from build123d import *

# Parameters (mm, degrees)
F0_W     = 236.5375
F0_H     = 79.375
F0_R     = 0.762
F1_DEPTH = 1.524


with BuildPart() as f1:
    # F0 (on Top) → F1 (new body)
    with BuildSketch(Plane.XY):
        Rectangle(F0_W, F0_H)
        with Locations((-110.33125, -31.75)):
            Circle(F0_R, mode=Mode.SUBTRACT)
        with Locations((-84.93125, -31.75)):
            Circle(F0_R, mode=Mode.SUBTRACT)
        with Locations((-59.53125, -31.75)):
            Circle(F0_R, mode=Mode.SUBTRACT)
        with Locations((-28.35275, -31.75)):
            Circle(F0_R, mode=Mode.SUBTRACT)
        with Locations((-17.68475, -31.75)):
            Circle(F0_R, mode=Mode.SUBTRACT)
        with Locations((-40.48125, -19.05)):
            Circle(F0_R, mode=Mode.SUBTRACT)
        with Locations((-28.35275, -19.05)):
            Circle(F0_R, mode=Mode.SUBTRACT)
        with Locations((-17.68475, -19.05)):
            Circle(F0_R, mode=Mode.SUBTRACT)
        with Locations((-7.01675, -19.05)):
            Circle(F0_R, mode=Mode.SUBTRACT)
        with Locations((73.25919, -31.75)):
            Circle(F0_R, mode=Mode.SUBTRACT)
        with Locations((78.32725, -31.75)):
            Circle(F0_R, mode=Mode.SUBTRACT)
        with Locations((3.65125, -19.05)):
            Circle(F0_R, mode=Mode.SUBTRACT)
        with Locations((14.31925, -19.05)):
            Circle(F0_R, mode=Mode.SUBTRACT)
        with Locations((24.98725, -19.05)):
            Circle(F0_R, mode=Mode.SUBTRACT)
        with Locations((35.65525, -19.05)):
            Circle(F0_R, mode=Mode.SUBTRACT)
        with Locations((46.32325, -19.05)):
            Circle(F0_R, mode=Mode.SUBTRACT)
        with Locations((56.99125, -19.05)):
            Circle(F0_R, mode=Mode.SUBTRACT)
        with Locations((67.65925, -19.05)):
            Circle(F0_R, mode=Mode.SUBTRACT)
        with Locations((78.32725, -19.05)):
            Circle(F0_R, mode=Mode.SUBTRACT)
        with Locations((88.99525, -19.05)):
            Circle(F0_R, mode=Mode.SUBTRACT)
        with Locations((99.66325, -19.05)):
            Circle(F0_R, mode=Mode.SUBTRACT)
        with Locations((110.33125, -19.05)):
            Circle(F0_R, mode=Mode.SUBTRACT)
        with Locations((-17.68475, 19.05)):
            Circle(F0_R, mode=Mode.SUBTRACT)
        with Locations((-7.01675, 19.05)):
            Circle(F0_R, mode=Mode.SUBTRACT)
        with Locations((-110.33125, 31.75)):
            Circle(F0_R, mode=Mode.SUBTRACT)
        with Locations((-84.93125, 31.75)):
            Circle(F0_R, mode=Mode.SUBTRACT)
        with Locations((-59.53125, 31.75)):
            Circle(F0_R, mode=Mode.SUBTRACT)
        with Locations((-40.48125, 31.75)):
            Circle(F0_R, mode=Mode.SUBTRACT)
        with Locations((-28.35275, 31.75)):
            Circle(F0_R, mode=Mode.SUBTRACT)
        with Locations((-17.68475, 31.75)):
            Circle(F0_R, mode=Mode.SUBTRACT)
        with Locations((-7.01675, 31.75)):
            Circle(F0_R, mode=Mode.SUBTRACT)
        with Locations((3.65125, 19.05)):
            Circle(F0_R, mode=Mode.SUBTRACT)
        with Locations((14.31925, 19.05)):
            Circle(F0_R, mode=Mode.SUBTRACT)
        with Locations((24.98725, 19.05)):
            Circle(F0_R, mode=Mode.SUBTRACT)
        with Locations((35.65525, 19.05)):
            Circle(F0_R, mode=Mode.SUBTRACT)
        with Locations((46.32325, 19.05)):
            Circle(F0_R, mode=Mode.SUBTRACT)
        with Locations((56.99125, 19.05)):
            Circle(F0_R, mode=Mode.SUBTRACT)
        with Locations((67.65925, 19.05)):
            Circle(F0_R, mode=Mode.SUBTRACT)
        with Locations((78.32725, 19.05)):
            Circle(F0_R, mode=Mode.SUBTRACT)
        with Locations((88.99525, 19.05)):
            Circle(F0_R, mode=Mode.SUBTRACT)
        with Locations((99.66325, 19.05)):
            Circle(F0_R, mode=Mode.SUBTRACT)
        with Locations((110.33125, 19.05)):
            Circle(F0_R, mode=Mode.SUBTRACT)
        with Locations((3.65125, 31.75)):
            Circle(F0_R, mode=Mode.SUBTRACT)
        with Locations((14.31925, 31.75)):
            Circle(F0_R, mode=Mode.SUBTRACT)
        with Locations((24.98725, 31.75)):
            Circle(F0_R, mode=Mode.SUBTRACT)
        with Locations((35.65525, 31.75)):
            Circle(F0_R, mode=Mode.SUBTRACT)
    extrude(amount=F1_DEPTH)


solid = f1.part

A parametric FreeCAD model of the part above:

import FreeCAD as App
import Part
import Sketcher
Q = App.Units.Quantity


def add_polygon(sketch, points):
    """Adds a closed chain of lines whose ends are joined by coincident constraints."""
    first, n = sketch.GeometryCount, len(points)
    for a, b in zip(points, points[1:] + points[:1]):
        sketch.addGeometry(Part.LineSegment(App.Vector(*a, 0), App.Vector(*b, 0)), False)
    for i in range(n):
        sketch.addConstraint(Sketcher.Constraint("Coincident", first + i, 2, first + (i + 1) % n, 1))

doc = App.newDocument("Part")
body = doc.addObject("PartDesign::Body", "Body")

sketch1 = doc.addObject("Sketcher::SketchObject", "Sketch")
body.addObject(sketch1)
sketch1.AttachmentSupport = (doc.XY_Plane, [""])
sketch1.MapMode = "FlatFace"
add_polygon(sketch1, [(-118.3, 39.7), (-118.3, -39.7), (118.3, -39.7), (118.3, 39.7)])
sketch1.addGeometry(Part.Circle(App.Vector(-110.3, -31.8, 0), App.Vector(0, 0, 1), 0.8), False)
sketch1.addGeometry(Part.Circle(App.Vector(-84.9, -31.8, 0), App.Vector(0, 0, 1), 0.8), False)
sketch1.addGeometry(Part.Circle(App.Vector(-59.5, -31.8, 0), App.Vector(0, 0, 1), 0.8), False)
sketch1.addGeometry(Part.Circle(App.Vector(-28.4, -31.8, 0), App.Vector(0, 0, 1), 0.8), False)
sketch1.addGeometry(Part.Circle(App.Vector(-17.7, -31.8, 0), App.Vector(0, 0, 1), 0.8), False)
sketch1.addGeometry(Part.Circle(App.Vector(-40.5, -19.1, 0), App.Vector(0, 0, 1), 0.8), False)
sketch1.addGeometry(Part.Circle(App.Vector(-28.4, -19.1, 0), App.Vector(0, 0, 1), 0.8), False)
sketch1.addGeometry(Part.Circle(App.Vector(-17.7, -19.1, 0), App.Vector(0, 0, 1), 0.8), False)
sketch1.addGeometry(Part.Circle(App.Vector(-7, -19.1, 0), App.Vector(0, 0, 1), 0.8), False)
sketch1.addGeometry(Part.Circle(App.Vector(3.7, -19.1, 0), App.Vector(0, 0, 1), 0.8), False)
sketch1.addGeometry(Part.Circle(App.Vector(14.3, -19.1, 0), App.Vector(0, 0, 1), 0.8), False)
sketch1.addGeometry(Part.Circle(App.Vector(25, -19.1, 0), App.Vector(0, 0, 1), 0.8), False)
sketch1.addGeometry(Part.Circle(App.Vector(35.7, -19.1, 0), App.Vector(0, 0, 1), 0.8), False)
sketch1.addGeometry(Part.Circle(App.Vector(46.3, -19.1, 0), App.Vector(0, 0, 1), 0.8), False)
sketch1.addGeometry(Part.Circle(App.Vector(73.3, -31.8, 0), App.Vector(0, 0, 1), 0.8), False)
sketch1.addGeometry(Part.Circle(App.Vector(78.3, -31.8, 0), App.Vector(0, 0, 1), 0.8), False)
sketch1.addGeometry(Part.Circle(App.Vector(57, -19.1, 0), App.Vector(0, 0, 1), 0.8), False)
sketch1.addGeometry(Part.Circle(App.Vector(67.7, -19.1, 0), App.Vector(0, 0, 1), 0.8), False)
sketch1.addGeometry(Part.Circle(App.Vector(78.3, -19.1, 0), App.Vector(0, 0, 1), 0.8), False)
sketch1.addGeometry(Part.Circle(App.Vector(89, -19.1, 0), App.Vector(0, 0, 1), 0.8), False)
sketch1.addGeometry(Part.Circle(App.Vector(99.7, -19.1, 0), App.Vector(0, 0, 1), 0.8), False)
sketch1.addGeometry(Part.Circle(App.Vector(110.3, -19.1, 0), App.Vector(0, 0, 1), 0.8), False)
sketch1.addGeometry(Part.Circle(App.Vector(-110.3, 31.8, 0), App.Vector(0, 0, 1), 0.8), False)
sketch1.addGeometry(Part.Circle(App.Vector(-84.9, 31.8, 0), App.Vector(0, 0, 1), 0.8), False)
sketch1.addGeometry(Part.Circle(App.Vector(-59.5, 31.8, 0), App.Vector(0, 0, 1), 0.8), False)
sketch1.addGeometry(Part.Circle(App.Vector(-17.7, 19.1, 0), App.Vector(0, 0, 1), 0.8), False)
sketch1.addGeometry(Part.Circle(App.Vector(-7, 19.1, 0), App.Vector(0, 0, 1), 0.8), False)
sketch1.addGeometry(Part.Circle(App.Vector(-40.5, 31.8, 0), App.Vector(0, 0, 1), 0.8), False)
sketch1.addGeometry(Part.Circle(App.Vector(-28.4, 31.8, 0), App.Vector(0, 0, 1), 0.8), False)
sketch1.addGeometry(Part.Circle(App.Vector(-17.7, 31.8, 0), App.Vector(0, 0, 1), 0.8), False)
sketch1.addGeometry(Part.Circle(App.Vector(-7, 31.8, 0), App.Vector(0, 0, 1), 0.8), False)
sketch1.addGeometry(Part.Circle(App.Vector(3.7, 19.1, 0), App.Vector(0, 0, 1), 0.8), False)
sketch1.addGeometry(Part.Circle(App.Vector(14.3, 19.1, 0), App.Vector(0, 0, 1), 0.8), False)
sketch1.addGeometry(Part.Circle(App.Vector(25, 19.1, 0), App.Vector(0, 0, 1), 0.8), False)
sketch1.addGeometry(Part.Circle(App.Vector(35.7, 19.1, 0), App.Vector(0, 0, 1), 0.8), False)
sketch1.addGeometry(Part.Circle(App.Vector(46.3, 19.1, 0), App.Vector(0, 0, 1), 0.8), False)
sketch1.addGeometry(Part.Circle(App.Vector(3.7, 31.8, 0), App.Vector(0, 0, 1), 0.8), False)
sketch1.addGeometry(Part.Circle(App.Vector(14.3, 31.8, 0), App.Vector(0, 0, 1), 0.8), False)
sketch1.addGeometry(Part.Circle(App.Vector(25, 31.8, 0), App.Vector(0, 0, 1), 0.8), False)
sketch1.addGeometry(Part.Circle(App.Vector(35.7, 31.8, 0), App.Vector(0, 0, 1), 0.8), False)
sketch1.addGeometry(Part.Circle(App.Vector(57, 19.1, 0), App.Vector(0, 0, 1), 0.8), False)
sketch1.addGeometry(Part.Circle(App.Vector(67.7, 19.1, 0), App.Vector(0, 0, 1), 0.8), False)
sketch1.addGeometry(Part.Circle(App.Vector(78.3, 19.1, 0), App.Vector(0, 0, 1), 0.8), False)
sketch1.addGeometry(Part.Circle(App.Vector(89, 19.1, 0), App.Vector(0, 0, 1), 0.8), False)
sketch1.addGeometry(Part.Circle(App.Vector(99.7, 19.1, 0), App.Vector(0, 0, 1), 0.8), False)
sketch1.addGeometry(Part.Circle(App.Vector(110.3, 19.1, 0), App.Vector(0, 0, 1), 0.8), False)
sketch1.addConstraint(Sketcher.Constraint("Vertical", 0))
sketch1.addConstraint(Sketcher.Constraint("Horizontal", 1))
sketch1.addConstraint(Sketcher.Constraint("Vertical", 2))
sketch1.addConstraint(Sketcher.Constraint("Horizontal", 3))
sketch1.addConstraint(Sketcher.Constraint("Equal", 4, 5))
sketch1.addConstraint(Sketcher.Constraint("Equal", 5, 6))
sketch1.addConstraint(Sketcher.Constraint("Equal", 6, 7))
sketch1.addConstraint(Sketcher.Constraint("Equal", 7, 8))
sketch1.addConstraint(Sketcher.Constraint("Equal", 8, 9))
sketch1.addConstraint(Sketcher.Constraint("Equal", 9, 10))
sketch1.addConstraint(Sketcher.Constraint("Equal", 10, 11))
sketch1.addConstraint(Sketcher.Constraint("Equal", 11, 12))
sketch1.addConstraint(Sketcher.Constraint("Equal", 12, 13))
sketch1.addConstraint(Sketcher.Constraint("Equal", 13, 14))
sketch1.addConstraint(Sketcher.Constraint("Equal", 14, 15))
sketch1.addConstraint(Sketcher.Constraint("Equal", 15, 16))
sketch1.addConstraint(Sketcher.Constraint("Equal", 16, 17))
sketch1.addConstraint(Sketcher.Constraint("Equal", 17, 18))
sketch1.addConstraint(Sketcher.Constraint("Equal", 18, 19))
sketch1.addConstraint(Sketcher.Constraint("Equal", 19, 20))
sketch1.addConstraint(Sketcher.Constraint("Equal", 20, 21))
sketch1.addConstraint(Sketcher.Constraint("Equal", 21, 22))
sketch1.addConstraint(Sketcher.Constraint("Equal", 22, 23))
sketch1.addConstraint(Sketcher.Constraint("Equal", 23, 24))
sketch1.addConstraint(Sketcher.Constraint("Equal", 24, 25))
sketch1.addConstraint(Sketcher.Constraint("Equal", 25, 26))
sketch1.addConstraint(Sketcher.Constraint("Equal", 26, 27))
sketch1.addConstraint(Sketcher.Constraint("Equal", 27, 28))
sketch1.addConstraint(Sketcher.Constraint("Equal", 28, 29))
sketch1.addConstraint(Sketcher.Constraint("Equal", 29, 30))
sketch1.addConstraint(Sketcher.Constraint("Equal", 30, 31))
sketch1.addConstraint(Sketcher.Constraint("Equal", 31, 32))
sketch1.addConstraint(Sketcher.Constraint("Equal", 32, 33))
sketch1.addConstraint(Sketcher.Constraint("Equal", 33, 34))
sketch1.addConstraint(Sketcher.Constraint("Equal", 34, 35))
sketch1.addConstraint(Sketcher.Constraint("Equal", 35, 36))
sketch1.addConstraint(Sketcher.Constraint("Equal", 36, 37))
sketch1.addConstraint(Sketcher.Constraint("Equal", 37, 38))
sketch1.addConstraint(Sketcher.Constraint("Equal", 38, 39))
sketch1.addConstraint(Sketcher.Constraint("Equal", 39, 40))
sketch1.addConstraint(Sketcher.Constraint("Equal", 40, 41))
sketch1.addConstraint(Sketcher.Constraint("Equal", 41, 42))
sketch1.addConstraint(Sketcher.Constraint("Equal", 42, 43))
sketch1.addConstraint(Sketcher.Constraint("Equal", 43, 44))
sketch1.addConstraint(Sketcher.Constraint("Equal", 44, 45))
sketch1.addConstraint(Sketcher.Constraint("Equal", 45, 46))
sketch1.addConstraint(Sketcher.Constraint("Equal", 46, 47))
sketch1.addConstraint(Sketcher.Constraint("Equal", 47, 48))
sketch1.addConstraint(Sketcher.Constraint("Equal", 48, 49))
sketch1.addConstraint(Sketcher.Constraint("Symmetric", 0, 2, 2, 2, -1, 1))
sketch1.addConstraint(Sketcher.Constraint("Symmetric", 4, 3, 26, 3, -1))
sketch1.addConstraint(Sketcher.Constraint("Symmetric", 5, 3, 27, 3, -1))
sketch1.addConstraint(Sketcher.Constraint("Symmetric", 6, 3, 28, 3, -1))
sketch1.addConstraint(Sketcher.Constraint("Symmetric", 11, 3, 29, 3, -1))
sketch1.addConstraint(Sketcher.Constraint("Symmetric", 12, 3, 30, 3, -1))
sketch1.addConstraint(Sketcher.Constraint("Symmetric", 7, 3, 32, 3, -1))
sketch1.addConstraint(Sketcher.Constraint("Symmetric", 8, 3, 33, 3, -1))
sketch1.addConstraint(Sketcher.Constraint("Symmetric", 13, 3, 35, 3, -1))
sketch1.addConstraint(Sketcher.Constraint("Symmetric", 14, 3, 36, 3, -1))
sketch1.addConstraint(Sketcher.Constraint("Symmetric", 15, 3, 37, 3, -1))
sketch1.addConstraint(Sketcher.Constraint("Symmetric", 16, 3, 38, 3, -1))
sketch1.addConstraint(Sketcher.Constraint("Symmetric", 17, 3, 39, 3, -1))
sketch1.addConstraint(Sketcher.Constraint("Symmetric", 20, 3, 44, 3, -1))
sketch1.addConstraint(Sketcher.Constraint("Symmetric", 21, 3, 45, 3, -1))
sketch1.addConstraint(Sketcher.Constraint("Symmetric", 22, 3, 46, 3, -1))
sketch1.addConstraint(Sketcher.Constraint("Symmetric", 23, 3, 47, 3, -1))
sketch1.addConstraint(Sketcher.Constraint("Symmetric", 24, 3, 48, 3, -1))
sketch1.addConstraint(Sketcher.Constraint("Symmetric", 25, 3, 49, 3, -1))
sketch1.addConstraint(Sketcher.Constraint("Horizontal", 4, 3, 5, 3))
sketch1.addConstraint(Sketcher.Constraint("Horizontal", 5, 3, 6, 3))
sketch1.addConstraint(Sketcher.Constraint("Horizontal", 6, 3, 7, 3))
sketch1.addConstraint(Sketcher.Constraint("Horizontal", 7, 3, 8, 3))
sketch1.addConstraint(Sketcher.Constraint("Horizontal", 9, 3, 10, 3))
sketch1.addConstraint(Sketcher.Constraint("Horizontal", 10, 3, 11, 3))
sketch1.addConstraint(Sketcher.Constraint("Horizontal", 11, 3, 12, 3))
sketch1.addConstraint(Sketcher.Constraint("Horizontal", 12, 3, 13, 3))
sketch1.addConstraint(Sketcher.Constraint("Horizontal", 13, 3, 14, 3))
sketch1.addConstraint(Sketcher.Constraint("Horizontal", 14, 3, 15, 3))
sketch1.addConstraint(Sketcher.Constraint("Horizontal", 15, 3, 16, 3))
sketch1.addConstraint(Sketcher.Constraint("Horizontal", 16, 3, 17, 3))
sketch1.addConstraint(Sketcher.Constraint("Horizontal", 8, 3, 18, 3))
sketch1.addConstraint(Sketcher.Constraint("Horizontal", 18, 3, 19, 3))
sketch1.addConstraint(Sketcher.Constraint("Horizontal", 17, 3, 20, 3))
sketch1.addConstraint(Sketcher.Constraint("Horizontal", 20, 3, 21, 3))
sketch1.addConstraint(Sketcher.Constraint("Horizontal", 21, 3, 22, 3))
sketch1.addConstraint(Sketcher.Constraint("Horizontal", 22, 3, 23, 3))
sketch1.addConstraint(Sketcher.Constraint("Horizontal", 23, 3, 24, 3))
sketch1.addConstraint(Sketcher.Constraint("Horizontal", 24, 3, 25, 3))
sketch1.addConstraint(Sketcher.Constraint("Horizontal", 28, 3, 31, 3))
sketch1.addConstraint(Sketcher.Constraint("Horizontal", 33, 3, 34, 3))
sketch1.addConstraint(Sketcher.Constraint("Horizontal", 34, 3, 40, 3))
sketch1.addConstraint(Sketcher.Constraint("Horizontal", 40, 3, 41, 3))
sketch1.addConstraint(Sketcher.Constraint("Horizontal", 41, 3, 42, 3))
sketch1.addConstraint(Sketcher.Constraint("Horizontal", 42, 3, 43, 3))
sketch1.addConstraint(Sketcher.Constraint("Vertical", 7, 3, 10, 3))
sketch1.addConstraint(Sketcher.Constraint("Vertical", 8, 3, 11, 3))
sketch1.addConstraint(Sketcher.Constraint("Vertical", 19, 3, 22, 3))
sketch1.addConstraint(Sketcher.Constraint("Vertical", 9, 3, 31, 3))
sketch1.addConstraint(Sketcher.Constraint("Vertical", 30, 3, 34, 3))
sketch1.addConstraint(Sketcher.Constraint("Vertical", 35, 3, 40, 3))
sketch1.addConstraint(Sketcher.Constraint("Vertical", 36, 3, 41, 3))
sketch1.addConstraint(Sketcher.Constraint("Vertical", 37, 3, 42, 3))
sketch1.addConstraint(Sketcher.Constraint("Vertical", 38, 3, 43, 3))
sketch1.addConstraint(Sketcher.Constraint("Diameter", 4, Q("0.06 in")))
sketch1.addConstraint(Sketcher.Constraint("DistanceX", 4, 3, 5, 3, Q("1 in")))
sketch1.addConstraint(Sketcher.Constraint("DistanceX", 5, 3, 6, 3, Q("1 in")))
sketch1.addConstraint(Sketcher.Constraint("DistanceY", 9, 3, 26, 3, Q("2 in")))
sketch1.addConstraint(Sketcher.Constraint("DistanceY", 7, 3, 9, 3, Q("0.5 in")))
sketch1.addConstraint(Sketcher.Constraint("DistanceX", 11, 3, 16, 3, Q("2.1 in")))
sketch1.addConstraint(Sketcher.Constraint("DistanceX", 12, 3, 17, 3, Q("2.1 in")))
sketch1.addConstraint(Sketcher.Constraint("DistanceX", 15, 3, 19, 3, Q("2.1 in")))
sketch1.addConstraint(Sketcher.Constraint("DistanceX", 1, 1, 1, 2, Q("9.3125 in")))
sketch1.addConstraint(Sketcher.Constraint("DistanceY", 0, 2, 0, 1, Q("3.125 in")))
sketch1.addConstraint(Sketcher.Constraint("DistanceX", 7, 3, 8, 3, Q("0.42 in")))
sketch1.addConstraint(Sketcher.Constraint("DistanceX", 6, 3, 9, 3, Q("0.75 in")))
sketch1.addConstraint(Sketcher.Constraint("DistanceX", 11, 3, 12, 3, Q("0.42 in")))
sketch1.addConstraint(Sketcher.Constraint("DistanceX", 12, 3, 13, 3, Q("0.42 in")))
sketch1.addConstraint(Sketcher.Constraint("DistanceX", 13, 3, 14, 3, Q("0.42 in")))
sketch1.addConstraint(Sketcher.Constraint("DistanceX", 14, 3, 15, 3, Q("0.42 in")))
sketch1.addConstraint(Sketcher.Constraint("DistanceX", 17, 3, 20, 3, Q("0.42 in")))
sketch1.addConstraint(Sketcher.Constraint("DistanceX", 20, 3, 21, 3, Q("0.42 in")))
sketch1.addConstraint(Sketcher.Constraint("DistanceX", 22, 3, 23, 3, Q("0.42 in")))
sketch1.addConstraint(Sketcher.Constraint("DistanceX", 23, 3, 24, 3, Q("0.42 in")))
sketch1.addConstraint(Sketcher.Constraint("DistanceX", 24, 3, 25, 3, Q("0.42 in")))
sketch1.addConstraint(Sketcher.Constraint("DistanceX", 4, 3, -1, 1, Q("4.34375 in")))
sketch1.addConstraint(Sketcher.Constraint("DistanceX", -1, 1, 25, 3, Q("4.34375 in")))
sketch1.addConstraint(Sketcher.Constraint("DistanceX", -1, 1, 18, 3, Q("73.25919 mm")))
pad1 = doc.addObject("PartDesign::Pad", "Pad")
body.addObject(pad1)
pad1.Profile = sketch1
pad1.Length = Q("0.06 in")

doc.recompute()
